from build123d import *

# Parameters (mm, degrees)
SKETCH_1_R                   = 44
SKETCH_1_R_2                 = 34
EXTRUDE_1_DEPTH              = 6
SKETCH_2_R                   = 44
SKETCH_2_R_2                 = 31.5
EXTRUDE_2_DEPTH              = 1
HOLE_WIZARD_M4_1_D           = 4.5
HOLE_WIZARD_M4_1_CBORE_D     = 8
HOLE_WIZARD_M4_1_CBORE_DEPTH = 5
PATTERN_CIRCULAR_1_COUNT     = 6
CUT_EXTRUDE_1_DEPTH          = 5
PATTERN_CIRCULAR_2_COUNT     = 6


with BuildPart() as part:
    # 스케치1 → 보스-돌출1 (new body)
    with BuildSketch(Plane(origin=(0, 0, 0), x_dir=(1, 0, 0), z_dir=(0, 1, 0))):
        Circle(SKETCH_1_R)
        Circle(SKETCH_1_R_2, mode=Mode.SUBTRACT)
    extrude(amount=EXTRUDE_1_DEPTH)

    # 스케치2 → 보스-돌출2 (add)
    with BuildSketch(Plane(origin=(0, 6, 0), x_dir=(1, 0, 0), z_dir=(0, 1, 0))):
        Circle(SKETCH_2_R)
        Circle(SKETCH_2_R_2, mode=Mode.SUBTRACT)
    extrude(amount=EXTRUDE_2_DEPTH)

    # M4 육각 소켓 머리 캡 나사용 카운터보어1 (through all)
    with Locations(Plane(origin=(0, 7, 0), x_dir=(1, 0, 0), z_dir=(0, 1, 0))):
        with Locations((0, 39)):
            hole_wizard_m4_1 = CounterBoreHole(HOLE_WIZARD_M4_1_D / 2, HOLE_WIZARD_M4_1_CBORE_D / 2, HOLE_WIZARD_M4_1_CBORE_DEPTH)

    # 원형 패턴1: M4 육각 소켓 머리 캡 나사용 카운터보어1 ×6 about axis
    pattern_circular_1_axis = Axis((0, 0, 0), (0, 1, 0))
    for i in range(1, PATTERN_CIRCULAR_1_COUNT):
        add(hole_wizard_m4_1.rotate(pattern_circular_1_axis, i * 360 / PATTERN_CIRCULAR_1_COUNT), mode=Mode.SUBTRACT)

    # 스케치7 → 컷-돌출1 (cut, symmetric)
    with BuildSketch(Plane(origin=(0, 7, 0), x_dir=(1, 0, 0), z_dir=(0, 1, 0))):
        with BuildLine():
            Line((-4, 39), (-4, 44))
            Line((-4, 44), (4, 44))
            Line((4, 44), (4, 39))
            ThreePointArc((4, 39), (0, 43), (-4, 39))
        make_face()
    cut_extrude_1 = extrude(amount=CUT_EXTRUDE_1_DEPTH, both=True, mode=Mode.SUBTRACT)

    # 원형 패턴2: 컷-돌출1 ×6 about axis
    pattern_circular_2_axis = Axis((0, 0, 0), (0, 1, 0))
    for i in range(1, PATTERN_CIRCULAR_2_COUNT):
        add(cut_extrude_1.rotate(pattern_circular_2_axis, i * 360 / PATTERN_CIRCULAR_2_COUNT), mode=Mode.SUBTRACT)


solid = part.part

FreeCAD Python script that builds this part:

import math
import FreeCAD as App
import Part
import Sketcher

V = App.Vector
Q = App.Units.Quantity

doc = App.newDocument("Part")
body = doc.addObject("PartDesign::Body", "Body")

# Sketch on XZ plane
sketch1 = doc.addObject("Sketcher::SketchObject", "Sketch")
body.addObject(sketch1)
sketch1.AttachmentSupport = (doc.XZ_Plane, [""])
sketch1.MapMode = "FlatFace"
sketch1.addGeometry(Part.Circle(V(0, 0, 0), V(0, 0, 1), 44), False)
sketch1.addGeometry(Part.Circle(V(0, 0, 0), V(0, 0, 1), 34), False)
sketch1.addConstraint(Sketcher.Constraint("Coincident", 0, 3, -1, 1))
sketch1.addConstraint(Sketcher.Constraint("Coincident", 1, 3, -1, 1))
sketch1.addConstraint(Sketcher.Constraint("Diameter", 0, Q("88 mm")))
sketch1.addConstraint(Sketcher.Constraint("Diameter", 1, Q("68 mm")))
pad1 = doc.addObject("PartDesign::Pad", "Pad")
body.addObject(pad1)
pad1.Profile = sketch1
pad1.Length = 6
pad1.Reversed = True

# Sketch on XZ plane
sketch2 = doc.addObject("Sketcher::SketchObject", "Sketch001")
body.addObject(sketch2)
sketch2.AttachmentSupport = (doc.XZ_Plane, [""])
sketch2.MapMode = "FlatFace"
sketch2.AttachmentOffset = App.Placement(V(0, 0, -6), App.Rotation())
sketch2.addGeometry(Part.Circle(V(0, 0, 0), V(0, 0, 1), 44), False)
sketch2.addGeometry(Part.Circle(V(0, 0, 0), V(0, 0, 1), 31.5), False)
sketch2.addConstraint(Sketcher.Constraint("Coincident", 0, 3, -1, 1))
sketch2.addConstraint(Sketcher.Constraint("Coincident", 1, 3, -1, 1))
sketch2.addConstraint(Sketcher.Constraint("Diameter", 0, Q("88 mm")))
sketch2.addConstraint(Sketcher.Constraint("Diameter", 1, Q("63 mm")))
pad2 = doc.addObject("PartDesign::Pad", "Pad001")
body.addObject(pad2)
pad2.Profile = sketch2
pad2.Length = 1
pad2.Reversed = True

# Sketch on XZ plane
sketch3 = doc.addObject("Sketcher::SketchObject", "Sketch002")
body.addObject(sketch3)
sketch3.AttachmentSupport = (doc.XZ_Plane, [""])
sketch3.MapMode = "FlatFace"
sketch3.AttachmentOffset = App.Placement(V(0, 0, -7), App.Rotation())
sketch3.addGeometry(Part.Circle(V(0, -39, 0), V(0, 0, 1), 2.25), False)
sketch3.addConstraint(Sketcher.Constraint("PointOnObject", 0, 3, -2))
sketch3.addConstraint(Sketcher.Constraint("Diameter", 0, Q("4.5 mm")))
sketch3.addConstraint(Sketcher.Constraint("DistanceY", 0, 3, -1, 1, Q("39 mm")))
doc.recompute()
hole = doc.addObject("PartDesign::Hole", "Hole")
body.addObject(hole)
hole.Profile = sketch3
hole.ThreadType = "None"
hole.Diameter = 4.5
hole.DepthType = "ThroughAll"
hole.HoleCutType = "Counterbore"
hole.HoleCutDiameter = 8
hole.HoleCutDepth = 5
hole.Reversed = True
doc.recompute()

polarpattern = doc.addObject("PartDesign::PolarPattern", "PolarPattern")
body.addObject(polarpattern)
polarpattern.Originals = [hole]
polarpattern.Axis = (doc.Y_Axis, [""])
polarpattern.Angle = 360
polarpattern.Occurrences = 6
body.Tip = polarpattern

# Sketch on XZ plane
sketch4 = doc.addObject("Sketcher::SketchObject", "Sketch003")
body.addObject(sketch4)
sketch4.AttachmentSupport = (doc.XZ_Plane, [""])
sketch4.MapMode = "FlatFace"
sketch4.AttachmentOffset = App.Placement(V(0, 0, -7), App.Rotation())
sketch4.addGeometry(Part.LineSegment(V(-4, -44, 0), V(-4, -39, 0)), False)
sketch4.addGeometry(Part.ArcOfCircle(Part.Circle(V(0, -39, 0), V(0, 0, 1), 4), math.radians(180), math.radians(360)), False)
sketch4.addGeometry(Part.LineSegment(V(4, -39, 0), V(4, -44, 0)), False)
sketch4.addGeometry(Part.LineSegment(V(4, -44, 0), V(-4, -44, 0)), False)
sketch4.addConstraint(Sketcher.Constraint("Tangent", 0, 2, 1, 1))
sketch4.addConstraint(Sketcher.Constraint("Tangent", 1, 2, 2, 1))
sketch4.addConstraint(Sketcher.Constraint("Coincident", 2, 2, 3, 1))
sketch4.addConstraint(Sketcher.Constraint("Coincident", 3, 2, 0, 1))
sketch4.addConstraint(Sketcher.Constraint("Vertical", 0))
sketch4.addConstraint(Sketcher.Constraint("Vertical", 2))
sketch4.addConstraint(Sketcher.Constraint("Horizontal", 3))
sketch4.addConstraint(Sketcher.Constraint("PointOnObject", 1, 3, -2))
sketch4.addConstraint(Sketcher.Constraint("Radius", 1, Q("4 mm")))
sketch4.addConstraint(Sketcher.Constraint("DistanceY", 0, 1, 0, 2, Q("5 mm")))
sketch4.addConstraint(Sketcher.Constraint("DistanceY", 1, 3, -1, 1, Q("39 mm")))
pocket1 = doc.addObject("PartDesign::Pocket", "Pocket")
body.addObject(pocket1)
pocket1.Profile = sketch4
pocket1.Length = 10
pocket1.Midplane = True
doc.recompute()

polarpattern2 = doc.addObject("PartDesign::PolarPattern", "PolarPattern001")
body.addObject(polarpattern2)
polarpattern2.Originals = [pocket1]
polarpattern2.Axis = (doc.Y_Axis, [""])
polarpattern2.Angle = 360
polarpattern2.Occurrences = 6
body.Tip = polarpattern2

doc.recompute()
